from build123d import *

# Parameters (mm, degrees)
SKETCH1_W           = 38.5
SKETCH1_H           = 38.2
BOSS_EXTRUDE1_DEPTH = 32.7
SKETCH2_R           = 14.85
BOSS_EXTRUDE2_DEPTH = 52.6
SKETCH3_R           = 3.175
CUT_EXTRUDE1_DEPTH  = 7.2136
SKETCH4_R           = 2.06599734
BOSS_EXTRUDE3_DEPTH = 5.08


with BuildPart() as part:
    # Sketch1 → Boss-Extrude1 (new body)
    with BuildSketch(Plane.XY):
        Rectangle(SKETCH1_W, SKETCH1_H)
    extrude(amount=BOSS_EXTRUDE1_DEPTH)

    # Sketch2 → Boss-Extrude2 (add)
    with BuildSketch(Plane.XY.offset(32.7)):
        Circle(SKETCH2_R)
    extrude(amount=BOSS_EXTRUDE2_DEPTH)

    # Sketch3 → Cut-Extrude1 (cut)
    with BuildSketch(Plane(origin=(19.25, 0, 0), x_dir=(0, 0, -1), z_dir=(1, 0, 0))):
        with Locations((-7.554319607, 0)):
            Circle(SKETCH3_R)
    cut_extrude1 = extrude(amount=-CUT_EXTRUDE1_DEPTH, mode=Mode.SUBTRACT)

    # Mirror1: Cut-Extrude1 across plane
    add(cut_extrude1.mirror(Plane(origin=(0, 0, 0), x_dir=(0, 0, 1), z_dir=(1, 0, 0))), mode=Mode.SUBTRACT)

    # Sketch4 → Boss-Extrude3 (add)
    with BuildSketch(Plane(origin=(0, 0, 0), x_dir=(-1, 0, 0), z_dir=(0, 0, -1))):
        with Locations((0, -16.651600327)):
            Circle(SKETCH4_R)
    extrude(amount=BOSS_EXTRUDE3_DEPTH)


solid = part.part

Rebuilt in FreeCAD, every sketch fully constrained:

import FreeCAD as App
import Part
import Sketcher

doc = App.newDocument("Part")
params = doc.addObject("Spreadsheet::Sheet", "Params")
for row, (alias, value) in enumerate([
    ("sketch1_width", "38.5 mm"),
    ("sketch1_height", "38.2 mm"),
    ("pad1_length", "32.7 mm"),
    ("sketch2_diameter", "29.7 mm"),
    ("pad2_length", "52.6 mm"),
    ("sketch3_diameter", "6.35 mm"),
    ("pocket1_length", "7.2136 mm"),
    ("pad3_length", "5.08 mm"),
], start=1):
    params.set(f"A{row}", alias)
    params.set(f"B{row}", "=" + value)
    params.setAlias(f"B{row}", alias)

body = doc.addObject("PartDesign::Body", "Body")

# Sketch on XY plane
sketch1 = doc.addObject("Sketcher::SketchObject", "Sketch")
body.addObject(sketch1)
sketch1.AttachmentSupport = (doc.XY_Plane, [""])
sketch1.MapMode = "FlatFace"
sketch1.addGeometry([
    Part.LineSegment(App.Vector(-19.25, 19.1, 0), App.Vector(-19.25, -19.1, 0)),
    Part.LineSegment(App.Vector(-19.25, -19.1, 0), App.Vector(19.25, -19.1, 0)),
    Part.LineSegment(App.Vector(19.25, -19.1, 0), App.Vector(19.25, 19.1, 0)),
    Part.LineSegment(App.Vector(19.25, 19.1, 0), App.Vector(-19.25, 19.1, 0)),
], False)
sketch1.addConstraint([
    Sketcher.Constraint("Coincident", 0, 2, 1, 1),
    Sketcher.Constraint("Coincident", 1, 2, 2, 1),
    Sketcher.Constraint("Coincident", 2, 2, 3, 1),
    Sketcher.Constraint("Coincident", 3, 2, 0, 1),
    Sketcher.Constraint("Vertical", 0),
    Sketcher.Constraint("Horizontal", 1),
    Sketcher.Constraint("Vertical", 2),
    Sketcher.Constraint("Horizontal", 3),
    Sketcher.Constraint("Symmetric", 0, 2, 2, 2, -1, 1),
    Sketcher.Constraint("DistanceX", 1, 1, 1, 2, 38.5),
    Sketcher.Constraint("DistanceY", 0, 2, 0, 1, 38.2),
])
sketch1.setExpression("Constraints[9]", "Params.sketch1_width")
sketch1.setExpression("Constraints[10]", "Params.sketch1_height")
pad1 = doc.addObject("PartDesign::Pad", "Pad")
body.addObject(pad1)
pad1.Profile = sketch1
pad1.setExpression("Length", "Params.pad1_length")

# Sketch on XY plane
sketch2 = doc.addObject("Sketcher::SketchObject", "Sketch001")
body.addObject(sketch2)
sketch2.AttachmentSupport = (doc.XY_Plane, [""])
sketch2.MapMode = "FlatFace"
sketch2.AttachmentOffset = App.Placement(App.Vector(0, 0, 32.7), App.Rotation())
sketch2.addGeometry(Part.Circle(App.Vector(0, 0, 0), App.Vector(0, 0, 1), 14.85), False)
sketch2.addConstraint([
    Sketcher.Constraint("Coincident", 0, 3, -1, 1),
    Sketcher.Constraint("Diameter", 0, 29.7),
])
sketch2.setExpression("Constraints[1]", "Params.sketch2_diameter")
pad2 = doc.addObject("PartDesign::Pad", "Pad001")
body.addObject(pad2)
pad2.Profile = sketch2
pad2.setExpression("Length", "Params.pad2_length")

# Sketch on YZ plane
sketch3 = doc.addObject("Sketcher::SketchObject", "Sketch002")
body.addObject(sketch3)
sketch3.AttachmentSupport = (doc.YZ_Plane, [""])
sketch3.MapMode = "FlatFace"
sketch3.AttachmentOffset = App.Placement(App.Vector(0, 0, 19.25), App.Rotation())
sketch3.addGeometry(Part.Circle(App.Vector(0, 7.55432, 0), App.Vector(0, 0, 1), 3.175), False)
sketch3.addConstraint([
    Sketcher.Constraint("PointOnObject", 0, 3, -2),
    Sketcher.Constraint("Diameter", 0, 6.35),
    Sketcher.Constraint("DistanceY", -1, 1, 0, 3, 7.55432),
])
sketch3.setExpression("Constraints[1]", "Params.sketch3_diameter")
pocket1 = doc.addObject("PartDesign::Pocket", "Pocket")
body.addObject(pocket1)
pocket1.Profile = sketch3
pocket1.setExpression("Length", "Params.pocket1_length")
doc.recompute()

mirrored = doc.addObject("PartDesign::Mirrored", "Mirrored")
body.addObject(mirrored)
mirrored.Originals = [pocket1]
mirrored.MirrorPlane = (doc.YZ_Plane, [""])
body.Tip = mirrored

# Sketch on XY plane
sketch4 = doc.addObject("Sketcher::SketchObject", "Sketch003")
body.addObject(sketch4)
sketch4.AttachmentSupport = (doc.XY_Plane, [""])
sketch4.MapMode = "FlatFace"
sketch4.addGeometry(Part.Circle(App.Vector(0, -16.6516, 0), App.Vector(0, 0, 1), 2.065997), False)
sketch4.addConstraint([
    Sketcher.Constraint("PointOnObject", 0, 3, -2),
    Sketcher.Constraint("Diameter", 0, 4.131995),
    Sketcher.Constraint("DistanceY", 0, 3, -1, 1, 16.6516),
])
pad3 = doc.addObject("PartDesign::Pad", "Pad002")
body.addObject(pad3)
pad3.Profile = sketch4
pad3.setExpression("Length", "Params.pad3_length")
pad3.Reversed = True

doc.recompute()
